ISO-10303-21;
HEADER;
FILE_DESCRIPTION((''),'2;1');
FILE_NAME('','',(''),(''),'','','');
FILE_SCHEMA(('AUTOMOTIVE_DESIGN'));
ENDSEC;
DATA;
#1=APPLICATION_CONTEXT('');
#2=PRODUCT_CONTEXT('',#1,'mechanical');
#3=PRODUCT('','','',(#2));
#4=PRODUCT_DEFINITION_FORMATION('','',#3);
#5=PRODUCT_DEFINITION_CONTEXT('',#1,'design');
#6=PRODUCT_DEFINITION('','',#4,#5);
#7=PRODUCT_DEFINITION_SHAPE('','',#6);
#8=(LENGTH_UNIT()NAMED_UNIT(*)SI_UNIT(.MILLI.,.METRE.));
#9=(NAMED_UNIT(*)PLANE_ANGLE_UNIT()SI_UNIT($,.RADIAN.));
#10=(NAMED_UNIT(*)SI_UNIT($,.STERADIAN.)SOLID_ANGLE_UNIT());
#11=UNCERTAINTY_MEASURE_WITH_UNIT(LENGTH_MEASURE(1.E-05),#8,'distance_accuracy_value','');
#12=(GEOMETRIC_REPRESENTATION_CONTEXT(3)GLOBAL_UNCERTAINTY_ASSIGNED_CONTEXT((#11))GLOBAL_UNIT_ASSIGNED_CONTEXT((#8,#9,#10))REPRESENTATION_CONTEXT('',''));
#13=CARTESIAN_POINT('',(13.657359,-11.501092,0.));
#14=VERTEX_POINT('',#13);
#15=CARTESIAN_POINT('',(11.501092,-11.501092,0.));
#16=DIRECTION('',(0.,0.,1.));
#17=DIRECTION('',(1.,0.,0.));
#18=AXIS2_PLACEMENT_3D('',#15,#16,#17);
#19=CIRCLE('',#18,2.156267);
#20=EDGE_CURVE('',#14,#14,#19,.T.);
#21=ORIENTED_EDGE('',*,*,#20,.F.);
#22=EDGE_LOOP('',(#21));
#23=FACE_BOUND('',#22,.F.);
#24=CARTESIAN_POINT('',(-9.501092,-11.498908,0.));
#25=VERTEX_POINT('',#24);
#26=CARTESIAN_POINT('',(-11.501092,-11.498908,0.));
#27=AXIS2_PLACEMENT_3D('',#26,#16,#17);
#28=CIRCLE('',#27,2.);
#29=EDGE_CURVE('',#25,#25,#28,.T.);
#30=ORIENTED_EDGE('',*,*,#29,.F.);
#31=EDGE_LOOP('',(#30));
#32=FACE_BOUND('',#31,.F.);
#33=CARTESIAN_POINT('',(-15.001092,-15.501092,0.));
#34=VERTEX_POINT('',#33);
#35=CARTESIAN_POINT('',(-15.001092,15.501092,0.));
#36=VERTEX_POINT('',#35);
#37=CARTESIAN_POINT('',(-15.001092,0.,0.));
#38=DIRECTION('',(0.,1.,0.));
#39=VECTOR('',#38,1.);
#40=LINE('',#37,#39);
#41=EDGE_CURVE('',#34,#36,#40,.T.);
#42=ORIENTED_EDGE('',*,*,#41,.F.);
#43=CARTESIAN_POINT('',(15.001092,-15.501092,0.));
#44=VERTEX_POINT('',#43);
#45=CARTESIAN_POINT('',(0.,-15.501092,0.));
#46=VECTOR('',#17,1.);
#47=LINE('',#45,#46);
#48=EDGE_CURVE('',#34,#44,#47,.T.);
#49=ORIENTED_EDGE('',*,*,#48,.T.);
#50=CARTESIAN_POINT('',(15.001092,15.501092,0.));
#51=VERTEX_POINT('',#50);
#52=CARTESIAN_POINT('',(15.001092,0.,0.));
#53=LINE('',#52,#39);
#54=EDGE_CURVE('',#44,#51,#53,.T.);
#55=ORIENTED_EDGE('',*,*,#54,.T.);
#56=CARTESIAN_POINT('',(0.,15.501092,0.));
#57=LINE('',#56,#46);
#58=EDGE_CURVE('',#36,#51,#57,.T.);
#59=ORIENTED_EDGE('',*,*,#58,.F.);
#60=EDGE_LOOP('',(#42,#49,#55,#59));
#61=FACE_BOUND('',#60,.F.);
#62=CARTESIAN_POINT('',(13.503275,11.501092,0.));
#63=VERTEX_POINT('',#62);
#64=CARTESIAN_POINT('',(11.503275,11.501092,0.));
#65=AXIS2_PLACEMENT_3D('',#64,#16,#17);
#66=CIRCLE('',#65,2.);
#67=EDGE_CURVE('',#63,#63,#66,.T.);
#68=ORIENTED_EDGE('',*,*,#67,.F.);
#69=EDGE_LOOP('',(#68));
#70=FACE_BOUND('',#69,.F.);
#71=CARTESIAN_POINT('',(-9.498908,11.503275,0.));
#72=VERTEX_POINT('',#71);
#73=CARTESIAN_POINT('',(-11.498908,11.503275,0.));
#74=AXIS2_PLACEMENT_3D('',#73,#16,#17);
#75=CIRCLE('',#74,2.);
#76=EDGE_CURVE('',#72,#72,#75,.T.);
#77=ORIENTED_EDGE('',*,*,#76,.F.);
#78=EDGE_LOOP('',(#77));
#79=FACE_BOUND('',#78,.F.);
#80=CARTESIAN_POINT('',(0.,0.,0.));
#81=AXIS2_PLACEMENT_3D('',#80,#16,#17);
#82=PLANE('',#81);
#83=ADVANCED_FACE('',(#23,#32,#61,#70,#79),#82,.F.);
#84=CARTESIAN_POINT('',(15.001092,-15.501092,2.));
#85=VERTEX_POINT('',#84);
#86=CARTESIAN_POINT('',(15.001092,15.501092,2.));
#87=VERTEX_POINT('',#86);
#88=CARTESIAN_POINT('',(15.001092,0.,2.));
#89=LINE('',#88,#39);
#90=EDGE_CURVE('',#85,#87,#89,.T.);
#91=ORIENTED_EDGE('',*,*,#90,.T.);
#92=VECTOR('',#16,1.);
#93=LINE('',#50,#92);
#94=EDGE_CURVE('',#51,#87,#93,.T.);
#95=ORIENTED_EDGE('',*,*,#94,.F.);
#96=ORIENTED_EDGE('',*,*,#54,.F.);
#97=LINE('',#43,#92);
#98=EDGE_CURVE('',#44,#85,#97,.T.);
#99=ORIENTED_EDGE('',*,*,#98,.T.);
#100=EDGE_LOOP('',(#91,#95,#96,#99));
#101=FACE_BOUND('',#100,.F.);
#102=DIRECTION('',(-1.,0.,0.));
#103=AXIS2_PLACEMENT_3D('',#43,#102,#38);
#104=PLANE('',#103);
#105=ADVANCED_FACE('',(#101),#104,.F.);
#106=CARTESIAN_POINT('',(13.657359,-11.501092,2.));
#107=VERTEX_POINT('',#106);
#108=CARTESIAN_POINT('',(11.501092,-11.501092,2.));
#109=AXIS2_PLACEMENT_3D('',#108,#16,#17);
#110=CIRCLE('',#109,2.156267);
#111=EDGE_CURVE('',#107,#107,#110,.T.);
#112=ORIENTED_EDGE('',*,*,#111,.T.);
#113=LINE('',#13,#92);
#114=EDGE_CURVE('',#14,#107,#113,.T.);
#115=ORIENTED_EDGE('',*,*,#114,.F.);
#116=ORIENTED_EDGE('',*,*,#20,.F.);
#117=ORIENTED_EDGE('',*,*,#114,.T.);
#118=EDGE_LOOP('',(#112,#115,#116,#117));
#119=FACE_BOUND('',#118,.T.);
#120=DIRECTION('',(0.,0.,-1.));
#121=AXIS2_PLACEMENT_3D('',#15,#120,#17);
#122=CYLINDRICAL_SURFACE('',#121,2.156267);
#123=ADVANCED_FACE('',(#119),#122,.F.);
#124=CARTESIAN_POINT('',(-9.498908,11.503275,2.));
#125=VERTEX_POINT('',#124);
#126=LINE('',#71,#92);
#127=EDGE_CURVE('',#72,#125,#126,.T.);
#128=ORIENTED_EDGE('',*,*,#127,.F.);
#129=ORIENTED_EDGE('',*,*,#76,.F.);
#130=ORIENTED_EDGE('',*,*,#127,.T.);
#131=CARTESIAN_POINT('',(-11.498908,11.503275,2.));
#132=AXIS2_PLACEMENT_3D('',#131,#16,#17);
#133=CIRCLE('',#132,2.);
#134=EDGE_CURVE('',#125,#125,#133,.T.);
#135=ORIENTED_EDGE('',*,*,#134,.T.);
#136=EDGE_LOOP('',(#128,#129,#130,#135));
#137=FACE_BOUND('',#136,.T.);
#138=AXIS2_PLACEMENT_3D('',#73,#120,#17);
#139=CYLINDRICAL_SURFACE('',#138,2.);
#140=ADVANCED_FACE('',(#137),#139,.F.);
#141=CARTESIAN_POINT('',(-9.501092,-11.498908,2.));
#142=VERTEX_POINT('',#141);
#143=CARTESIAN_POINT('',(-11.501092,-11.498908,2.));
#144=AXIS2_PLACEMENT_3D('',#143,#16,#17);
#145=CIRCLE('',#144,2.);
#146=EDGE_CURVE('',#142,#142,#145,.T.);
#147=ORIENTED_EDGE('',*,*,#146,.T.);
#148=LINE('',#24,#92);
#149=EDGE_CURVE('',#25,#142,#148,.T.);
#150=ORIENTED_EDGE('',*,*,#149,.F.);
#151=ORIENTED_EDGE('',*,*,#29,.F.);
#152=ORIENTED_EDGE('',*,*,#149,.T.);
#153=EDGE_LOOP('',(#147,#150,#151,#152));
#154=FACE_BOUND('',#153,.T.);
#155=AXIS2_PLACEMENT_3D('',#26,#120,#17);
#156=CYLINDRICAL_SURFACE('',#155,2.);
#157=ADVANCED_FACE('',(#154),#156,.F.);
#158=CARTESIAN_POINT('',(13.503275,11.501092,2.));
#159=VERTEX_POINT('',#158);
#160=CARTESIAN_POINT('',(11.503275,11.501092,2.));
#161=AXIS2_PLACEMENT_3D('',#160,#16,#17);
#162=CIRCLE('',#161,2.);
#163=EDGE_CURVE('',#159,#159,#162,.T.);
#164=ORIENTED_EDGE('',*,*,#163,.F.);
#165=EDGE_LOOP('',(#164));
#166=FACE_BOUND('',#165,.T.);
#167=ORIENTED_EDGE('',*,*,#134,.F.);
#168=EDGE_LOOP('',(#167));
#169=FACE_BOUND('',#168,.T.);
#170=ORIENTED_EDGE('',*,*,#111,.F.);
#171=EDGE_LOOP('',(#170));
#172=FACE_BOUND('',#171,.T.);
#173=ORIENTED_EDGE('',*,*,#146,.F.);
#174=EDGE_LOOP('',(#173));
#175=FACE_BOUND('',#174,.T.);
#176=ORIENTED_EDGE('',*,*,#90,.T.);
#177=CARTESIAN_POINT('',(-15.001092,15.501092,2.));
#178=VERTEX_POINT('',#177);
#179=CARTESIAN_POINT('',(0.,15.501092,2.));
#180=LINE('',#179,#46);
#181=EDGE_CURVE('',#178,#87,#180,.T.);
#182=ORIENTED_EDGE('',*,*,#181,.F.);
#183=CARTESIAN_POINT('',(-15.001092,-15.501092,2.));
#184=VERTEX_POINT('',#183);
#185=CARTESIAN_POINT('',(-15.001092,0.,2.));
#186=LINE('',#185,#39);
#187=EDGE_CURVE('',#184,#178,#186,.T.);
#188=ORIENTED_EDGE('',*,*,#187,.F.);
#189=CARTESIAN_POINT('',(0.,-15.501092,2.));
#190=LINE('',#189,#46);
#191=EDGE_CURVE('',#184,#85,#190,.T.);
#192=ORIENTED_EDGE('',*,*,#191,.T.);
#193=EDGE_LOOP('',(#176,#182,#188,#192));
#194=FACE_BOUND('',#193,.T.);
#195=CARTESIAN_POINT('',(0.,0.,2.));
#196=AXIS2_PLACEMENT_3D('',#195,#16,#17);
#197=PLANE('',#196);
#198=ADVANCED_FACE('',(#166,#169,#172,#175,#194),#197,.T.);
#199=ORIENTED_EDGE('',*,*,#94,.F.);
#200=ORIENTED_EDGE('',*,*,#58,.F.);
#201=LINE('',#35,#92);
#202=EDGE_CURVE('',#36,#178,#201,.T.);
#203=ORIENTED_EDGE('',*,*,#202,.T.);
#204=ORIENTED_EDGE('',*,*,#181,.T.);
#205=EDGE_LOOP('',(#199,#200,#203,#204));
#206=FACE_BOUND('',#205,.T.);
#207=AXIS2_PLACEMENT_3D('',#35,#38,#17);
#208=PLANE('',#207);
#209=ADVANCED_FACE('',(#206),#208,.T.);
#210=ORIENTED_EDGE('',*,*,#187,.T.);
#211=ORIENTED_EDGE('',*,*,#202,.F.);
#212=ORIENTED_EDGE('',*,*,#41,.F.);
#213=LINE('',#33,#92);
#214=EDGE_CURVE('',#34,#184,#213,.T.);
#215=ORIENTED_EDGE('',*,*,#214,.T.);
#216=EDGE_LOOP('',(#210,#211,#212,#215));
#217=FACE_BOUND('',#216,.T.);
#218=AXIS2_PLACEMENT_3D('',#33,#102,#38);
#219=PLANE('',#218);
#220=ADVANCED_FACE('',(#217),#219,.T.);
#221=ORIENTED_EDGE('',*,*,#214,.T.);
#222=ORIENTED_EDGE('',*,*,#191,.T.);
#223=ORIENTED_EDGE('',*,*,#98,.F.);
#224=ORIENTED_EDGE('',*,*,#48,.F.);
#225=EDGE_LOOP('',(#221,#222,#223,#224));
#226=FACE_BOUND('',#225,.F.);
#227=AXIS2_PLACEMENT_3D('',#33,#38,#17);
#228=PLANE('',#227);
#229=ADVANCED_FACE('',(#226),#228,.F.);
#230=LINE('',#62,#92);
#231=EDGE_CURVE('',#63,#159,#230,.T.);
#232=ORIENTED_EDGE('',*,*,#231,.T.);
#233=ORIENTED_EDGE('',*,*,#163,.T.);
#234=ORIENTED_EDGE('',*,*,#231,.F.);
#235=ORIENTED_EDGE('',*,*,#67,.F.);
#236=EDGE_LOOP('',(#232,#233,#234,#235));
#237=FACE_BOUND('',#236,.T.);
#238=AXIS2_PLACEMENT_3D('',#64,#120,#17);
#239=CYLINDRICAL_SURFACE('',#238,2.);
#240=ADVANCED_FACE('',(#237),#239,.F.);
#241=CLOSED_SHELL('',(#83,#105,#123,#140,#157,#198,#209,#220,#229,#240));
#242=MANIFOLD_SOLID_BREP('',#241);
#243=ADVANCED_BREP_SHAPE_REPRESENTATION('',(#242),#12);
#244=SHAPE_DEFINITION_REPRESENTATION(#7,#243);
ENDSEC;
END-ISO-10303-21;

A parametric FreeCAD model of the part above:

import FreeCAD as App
import Part
import Sketcher

V = App.Vector

doc = App.newDocument("Part")
body = doc.addObject("PartDesign::Body", "Body")

sketch1 = body.newObject("Sketcher::SketchObject", "Sketch")
sketch1.AttachmentSupport = (doc.getObject("XY_Plane"), [""])
sketch1.MapMode = "FlatFace"
sketch1.addGeometry([
    Part.LineSegment(V(-15, 15.5, 0), V(-15, -15.5, 0)),
    Part.LineSegment(V(-15, -15.5, 0), V(15, -15.5, 0)),
    Part.LineSegment(V(15, -15.5, 0), V(15, 15.5, 0)),
    Part.LineSegment(V(15, 15.5, 0), V(-15, 15.5, 0)),
    Part.Circle(V(-11.5, -11.5, 0), V(0, 0, 1), 2),
    Part.Circle(V(11.5, -11.5, 0), V(0, 0, 1), 2.2),
    Part.Circle(V(-11.5, 11.5, 0), V(0, 0, 1), 2),
    Part.Circle(V(11.5, 11.5, 0), V(0, 0, 1), 2),
], False)
sketch1.addConstraint([
    Sketcher.Constraint("Coincident", 0, 2, 1, 1),
    Sketcher.Constraint("Coincident", 1, 2, 2, 1),
    Sketcher.Constraint("Coincident", 2, 2, 3, 1),
    Sketcher.Constraint("Coincident", 3, 2, 0, 1),
    Sketcher.Constraint("Vertical", 0),
    Sketcher.Constraint("Horizontal", 1),
    Sketcher.Constraint("Vertical", 2),
    Sketcher.Constraint("Horizontal", 3),
    Sketcher.Constraint("Equal", 4, 6),
    Sketcher.Constraint("Equal", 6, 7),
    Sketcher.Constraint("Symmetric", 0, 2, 2, 2, -1, 1),
    Sketcher.Constraint("Diameter", 4, 4.0),
    Sketcher.Constraint("DistanceX", 6, 3, 5, 3, 23.0),
    Sketcher.Constraint("DistanceY", 4, 3, 7, 3, 23.0),
    Sketcher.Constraint("DistanceY", 0, 2, 5, 3, 4.0),
    Sketcher.Constraint("DistanceY", 7, 3, 2, 2, 4.0),
    Sketcher.Constraint("DistanceX", 0, 2, 4, 3, 3.5),
    Sketcher.Constraint("DistanceX", 5, 3, 1, 2, 3.5),
    Sketcher.Constraint("Diameter", 5, 4.312534),
    Sketcher.Constraint("DistanceX", 1, 1, 1, 2, 30.002183),
    Sketcher.Constraint("DistanceY", 0, 2, 0, 1, 31.002183),
    Sketcher.Constraint("DistanceY", -1, 1, 6, 3, 11.503275),
    Sketcher.Constraint("DistanceX", -1, 1, 7, 3, 11.503275),
])
pad1 = body.newObject("PartDesign::Pad", "Pad")
pad1.Profile = sketch1
pad1.Length = 2

doc.recompute()
